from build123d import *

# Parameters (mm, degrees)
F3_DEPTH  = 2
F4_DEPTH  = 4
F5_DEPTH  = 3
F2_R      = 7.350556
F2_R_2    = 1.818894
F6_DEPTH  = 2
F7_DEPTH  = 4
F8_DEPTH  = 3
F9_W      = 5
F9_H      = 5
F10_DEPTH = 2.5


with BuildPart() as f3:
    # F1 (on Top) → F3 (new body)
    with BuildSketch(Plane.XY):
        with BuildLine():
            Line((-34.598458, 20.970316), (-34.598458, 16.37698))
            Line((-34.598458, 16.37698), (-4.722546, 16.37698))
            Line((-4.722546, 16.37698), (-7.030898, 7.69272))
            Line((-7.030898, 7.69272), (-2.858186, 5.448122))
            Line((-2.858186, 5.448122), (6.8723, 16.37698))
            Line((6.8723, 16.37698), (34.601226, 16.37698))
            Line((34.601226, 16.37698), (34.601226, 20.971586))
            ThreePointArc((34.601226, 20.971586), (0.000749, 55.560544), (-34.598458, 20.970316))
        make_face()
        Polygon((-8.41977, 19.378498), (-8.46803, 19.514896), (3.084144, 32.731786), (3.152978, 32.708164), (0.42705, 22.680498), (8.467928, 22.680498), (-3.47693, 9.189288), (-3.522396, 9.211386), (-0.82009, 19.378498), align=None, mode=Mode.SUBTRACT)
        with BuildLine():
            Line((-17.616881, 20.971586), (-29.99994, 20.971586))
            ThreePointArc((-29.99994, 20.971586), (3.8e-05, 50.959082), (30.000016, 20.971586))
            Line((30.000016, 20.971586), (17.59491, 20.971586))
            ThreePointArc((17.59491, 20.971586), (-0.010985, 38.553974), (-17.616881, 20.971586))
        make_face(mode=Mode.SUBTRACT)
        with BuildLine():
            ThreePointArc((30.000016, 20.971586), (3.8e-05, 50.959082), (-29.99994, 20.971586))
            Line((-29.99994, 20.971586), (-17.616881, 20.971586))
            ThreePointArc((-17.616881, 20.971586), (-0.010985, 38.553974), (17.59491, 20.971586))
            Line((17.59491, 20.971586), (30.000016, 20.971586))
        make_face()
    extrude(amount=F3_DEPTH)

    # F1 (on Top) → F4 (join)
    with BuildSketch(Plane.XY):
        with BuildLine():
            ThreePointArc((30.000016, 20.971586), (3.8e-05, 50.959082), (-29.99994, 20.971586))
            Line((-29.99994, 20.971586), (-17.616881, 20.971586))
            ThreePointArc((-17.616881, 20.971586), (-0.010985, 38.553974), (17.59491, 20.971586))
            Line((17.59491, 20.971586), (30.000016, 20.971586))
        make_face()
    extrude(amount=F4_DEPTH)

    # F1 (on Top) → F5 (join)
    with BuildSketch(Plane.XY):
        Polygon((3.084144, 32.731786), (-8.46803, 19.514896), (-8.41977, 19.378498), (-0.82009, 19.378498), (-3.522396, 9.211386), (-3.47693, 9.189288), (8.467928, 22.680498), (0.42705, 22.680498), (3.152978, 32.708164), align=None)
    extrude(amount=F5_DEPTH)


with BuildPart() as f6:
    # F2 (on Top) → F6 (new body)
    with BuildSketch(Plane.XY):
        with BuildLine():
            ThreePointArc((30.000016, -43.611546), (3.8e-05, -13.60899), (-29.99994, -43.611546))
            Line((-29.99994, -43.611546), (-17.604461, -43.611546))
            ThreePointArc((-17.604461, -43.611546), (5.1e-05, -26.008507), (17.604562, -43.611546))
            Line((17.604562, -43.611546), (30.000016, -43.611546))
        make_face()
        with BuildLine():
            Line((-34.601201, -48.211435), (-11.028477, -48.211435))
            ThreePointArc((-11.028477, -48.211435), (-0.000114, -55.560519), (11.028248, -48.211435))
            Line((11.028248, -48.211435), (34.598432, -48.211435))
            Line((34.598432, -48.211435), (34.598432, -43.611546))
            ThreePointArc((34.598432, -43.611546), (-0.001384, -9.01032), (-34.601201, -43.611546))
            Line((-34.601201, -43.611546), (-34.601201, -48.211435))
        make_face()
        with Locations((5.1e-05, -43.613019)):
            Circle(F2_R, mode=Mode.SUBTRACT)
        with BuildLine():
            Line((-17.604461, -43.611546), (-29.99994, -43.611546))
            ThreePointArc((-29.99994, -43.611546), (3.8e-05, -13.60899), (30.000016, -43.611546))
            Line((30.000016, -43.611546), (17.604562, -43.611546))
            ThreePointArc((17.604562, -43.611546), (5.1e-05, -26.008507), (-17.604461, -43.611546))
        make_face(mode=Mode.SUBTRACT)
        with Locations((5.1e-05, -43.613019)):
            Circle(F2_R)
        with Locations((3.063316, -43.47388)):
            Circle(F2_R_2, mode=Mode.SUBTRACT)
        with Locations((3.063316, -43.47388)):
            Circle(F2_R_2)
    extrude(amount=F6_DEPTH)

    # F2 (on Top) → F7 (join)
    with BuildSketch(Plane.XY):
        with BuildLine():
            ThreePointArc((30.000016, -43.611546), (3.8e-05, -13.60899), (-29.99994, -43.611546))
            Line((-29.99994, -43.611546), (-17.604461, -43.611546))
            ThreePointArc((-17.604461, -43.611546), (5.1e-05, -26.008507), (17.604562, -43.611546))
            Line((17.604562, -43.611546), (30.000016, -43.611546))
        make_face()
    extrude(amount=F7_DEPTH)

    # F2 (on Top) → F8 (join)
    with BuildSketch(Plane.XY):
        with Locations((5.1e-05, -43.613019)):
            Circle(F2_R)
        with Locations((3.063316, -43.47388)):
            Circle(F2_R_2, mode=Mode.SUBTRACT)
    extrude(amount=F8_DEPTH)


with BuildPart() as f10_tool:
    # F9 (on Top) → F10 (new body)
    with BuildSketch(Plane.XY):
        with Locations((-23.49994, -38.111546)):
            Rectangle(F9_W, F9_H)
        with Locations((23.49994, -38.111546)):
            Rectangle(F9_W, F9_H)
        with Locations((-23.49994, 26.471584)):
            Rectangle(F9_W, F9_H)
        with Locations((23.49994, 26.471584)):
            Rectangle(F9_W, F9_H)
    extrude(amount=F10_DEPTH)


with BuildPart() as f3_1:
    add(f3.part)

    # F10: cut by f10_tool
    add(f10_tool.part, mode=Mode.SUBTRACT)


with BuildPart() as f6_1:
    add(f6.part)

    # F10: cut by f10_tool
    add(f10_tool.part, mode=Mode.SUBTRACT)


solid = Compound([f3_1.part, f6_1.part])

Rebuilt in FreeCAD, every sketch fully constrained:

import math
import FreeCAD as App
import Part
import Sketcher

V = App.Vector


def add_polygon(sketch, points):
    """Adds a closed chain of lines whose ends are joined by coincident constraints."""
    first, n = sketch.GeometryCount, len(points)
    for a, b in zip(points, points[1:] + points[:1]):
        sketch.addGeometry(Part.LineSegment(App.Vector(*a, 0), App.Vector(*b, 0)), False)
    for i in range(n):
        sketch.addConstraint(Sketcher.Constraint("Coincident", first + i, 2, first + (i + 1) % n, 1))

doc = App.newDocument("Part")
body = doc.addObject("PartDesign::Body", "Body")

sketch1 = body.newObject("Sketcher::SketchObject", "Sketch")
sketch1.AttachmentSupport = (doc.getObject("XY_Plane"), [""])
sketch1.MapMode = "FlatFace"
sketch1.addGeometry(Part.LineSegment(V(-34.598458, 20.970316, 0), V(-34.598458, 16.37698, 0)), False)
sketch1.addGeometry(Part.LineSegment(V(-34.598458, 16.37698, 0), V(-4.722546, 16.37698, 0)), False)
sketch1.addGeometry(Part.LineSegment(V(-4.722546, 16.37698, 0), V(-7.030898, 7.69272, 0)), False)
sketch1.addGeometry(Part.LineSegment(V(-7.030898, 7.69272, 0), V(-2.858186, 5.448122, 0)), False)
sketch1.addGeometry(Part.LineSegment(V(-2.858186, 5.448122, 0), V(6.8723, 16.37698, 0)), False)
sketch1.addGeometry(Part.LineSegment(V(6.8723, 16.37698, 0), V(34.601226, 16.37698, 0)), False)
sketch1.addGeometry(Part.LineSegment(V(34.601226, 16.37698, 0), V(34.601226, 20.971586, 0)), False)
sketch1.addGeometry(Part.ArcOfCircle(Part.Circle(V(0.001384, 20.9607, 0), V(0, 0, 1), 34.599844), math.radians(0.018026), math.radians(179.984077)), False)
add_polygon(sketch1, [(-0.82009, 19.378498), (-8.41977, 19.378498), (-8.46803, 19.514896), (3.084144, 32.731786), (3.152978, 32.708164), (0.42705, 22.680498), (8.467928, 22.680498), (-3.47693, 9.189288), (-3.522396, 9.211386)])
sketch1.addConstraint([
    Sketcher.Constraint("Coincident", 0, 2, 1, 1),
    Sketcher.Constraint("Coincident", 1, 2, 2, 1),
    Sketcher.Constraint("Coincident", 2, 2, 3, 1),
    Sketcher.Constraint("Coincident", 3, 2, 4, 1),
    Sketcher.Constraint("Coincident", 4, 2, 5, 1),
    Sketcher.Constraint("Coincident", 5, 2, 6, 1),
    Sketcher.Constraint("Coincident", 6, 2, 7, 1),
    Sketcher.Constraint("Coincident", 7, 2, 0, 1),
    Sketcher.Constraint("Vertical", 0),
    Sketcher.Constraint("Horizontal", 1),
    Sketcher.Constraint("Horizontal", 5),
    Sketcher.Constraint("Vertical", 6),
    Sketcher.Constraint("Horizontal", 8),
    Sketcher.Constraint("Horizontal", 13),
    Sketcher.Constraint("Horizontal", 1, 2, 4, 2),
    Sketcher.Constraint("Radius", 7, 34.599844),
    Sketcher.Constraint("DistanceY", 8, 2, 12, 2, 3.302),
    Sketcher.Constraint("DistanceX", 1, 1, 1, 2, 29.875912),
    Sketcher.Constraint("DistanceX", 8, 2, 8, 1, 7.59968),
    Sketcher.Constraint("DistanceX", 13, 1, 13, 2, 8.040878),
    Sketcher.Constraint("DistanceY", -1, 1, 7, 3, 20.9607),
    Sketcher.Constraint("DistanceX", -1, 1, 4, 2, 6.8723),
    Sketcher.Constraint("DistanceY", -1, 1, 8, 2, 19.378498),
    Sketcher.Constraint("DistanceY", 9, 2, 12, 2, 3.165602),
    Sketcher.Constraint("DistanceX", 9, 2, 14, 2, 4.9911),
    Sketcher.Constraint("DistanceX", 2, 2, 15, 2, 3.508502),
    Sketcher.Constraint("Distance", 4, 14.632918),
    Sketcher.Constraint("Distance", 15, 0.050552),
    Sketcher.Constraint("DistanceX", 5, 1, 5, 2, 27.728926),
    Sketcher.Constraint("DistanceY", 0, 2, 0, 1, 4.593336),
    Sketcher.Constraint("DistanceY", 6, 1, 6, 2, 4.594606),
    Sketcher.Constraint("DistanceY", -1, 1, 0, 2, 16.37698),
    Sketcher.Constraint("DistanceY", -1, 1, 2, 2, 7.69272),
    Sketcher.Constraint("DistanceY", -1, 1, 3, 2, 5.448122),
    Sketcher.Constraint("DistanceX", 8, 2, -1, 1, 8.41977),
    Sketcher.Constraint("DistanceX", 9, 2, -1, 1, 8.46803),
    Sketcher.Constraint("DistanceX", -1, 1, 11, 2, 3.152978),
    Sketcher.Constraint("DistanceX", -1, 1, 12, 2, 0.42705),
    Sketcher.Constraint("DistanceX", 2, 2, 1, 2, 2.308352),
    Sketcher.Constraint("DistanceX", 7, 3, 10, 2, 3.08276),
    Sketcher.Constraint("DistanceY", 9, 2, 10, 2, 13.21689),
    Sketcher.Constraint("DistanceY", 14, 2, 8, 2, 10.18921),
    Sketcher.Constraint("Distance", 11, 0.072774),
])
pad1 = body.newObject("PartDesign::Pad", "Pad")
pad1.Profile = sketch1
pad1.Length = 2

sketch2 = body.newObject("Sketcher::SketchObject", "Sketch001")
sketch2.AttachmentSupport = (doc.getObject("XY_Plane"), [""])
sketch2.MapMode = "FlatFace"
sketch2.addGeometry([
    Part.ArcOfCircle(Part.Circle(V(0.000038, 20.959101, 0), V(0, 0, 1), 29.999981), math.radians(0.023844), math.radians(179.976156)),
    Part.LineSegment(V(-29.99994, 20.971586, 0), V(-17.616881, 20.971586, 0)),
    Part.ArcOfCircle(Part.Circle(V(-0.010986, 20.948063, 0), V(0, 0, 1), 17.605911), math.radians(0.076553), math.radians(179.923447)),
    Part.LineSegment(V(17.59491, 20.971586, 0), V(30.000016, 20.971586, 0)),
], False)
sketch2.addConstraint([
    Sketcher.Constraint("Coincident", 0, 2, 1, 1),
    Sketcher.Constraint("Coincident", 1, 2, 2, 2),
    Sketcher.Constraint("Coincident", 2, 1, 3, 1),
    Sketcher.Constraint("Coincident", 3, 2, 0, 1),
    Sketcher.Constraint("Horizontal", 1),
    Sketcher.Constraint("Horizontal", 3),
    Sketcher.Constraint("Horizontal", 1, 2, 2, 1),
    Sketcher.Constraint("Radius", 0, 29.999981),
    Sketcher.Constraint("Radius", 2, 17.605911),
    Sketcher.Constraint("DistanceX", 2, 3, 3, 2, 30.011001),
    Sketcher.Constraint("DistanceY", -1, 1, 0, 3, 20.959101),
    Sketcher.Constraint("DistanceX", 0, 2, -1, 1, 29.99994),
    Sketcher.Constraint("DistanceY", 2, 3, 0, 3, 0.011039),
    Sketcher.Constraint("DistanceY", -1, 1, 0, 2, 20.971586),
])
pad2 = body.newObject("PartDesign::Pad", "Pad001")
pad2.Profile = sketch2
pad2.Length = 4

sketch3 = body.newObject("Sketcher::SketchObject", "Sketch002")
sketch3.AttachmentSupport = (doc.getObject("XY_Plane"), [""])
sketch3.MapMode = "FlatFace"
add_polygon(sketch3, [(3.084144, 32.731786), (-8.46803, 19.514896), (-8.41977, 19.378498), (-0.82009, 19.378498), (-3.522396, 9.211386), (-3.47693, 9.189288), (8.467928, 22.680498), (0.42705, 22.680498), (3.152978, 32.708164)])
sketch3.addConstraint([
    Sketcher.Constraint("Horizontal", 2),
    Sketcher.Constraint("Horizontal", 6),
    Sketcher.Constraint("DistanceY", 2, 2, 5, 2, 3.302),
    Sketcher.Constraint("DistanceX", 2, 1, 2, 2, 7.59968),
    Sketcher.Constraint("DistanceX", 6, 2, 6, 1, 8.040878),
    Sketcher.Constraint("DistanceY", -1, 1, 1, 2, 19.378498),
    Sketcher.Constraint("DistanceX", 0, 2, 4, 2, 4.9911),
    Sketcher.Constraint("DistanceX", 1, 2, 5, 2, 16.887698),
    Sketcher.Constraint("DistanceY", 0, 2, 5, 2, 3.165602),
    Sketcher.Constraint("Distance", 4, 0.050552),
    Sketcher.Constraint("DistanceX", 0, 2, -1, 1, 8.46803),
    Sketcher.Constraint("DistanceX", 1, 2, -1, 1, 8.41977),
    Sketcher.Constraint("DistanceX", -1, 1, 7, 2, 3.152978),
    Sketcher.Constraint("DistanceY", 3, 2, 0, 2, 10.30351),
    Sketcher.Constraint("DistanceY", 4, 2, 2, 2, 10.18921),
    Sketcher.Constraint("DistanceY", 0, 2, 8, 2, 13.21689),
    Sketcher.Constraint("Distance", 0, 17.553886),
    Sketcher.Constraint("Distance", 7, 10.391572),
])
pad3 = body.newObject("PartDesign::Pad", "Pad002")
pad3.Profile = sketch3
pad3.Length = 3
body2 = doc.addObject("PartDesign::Body", "Body001")

sketch4 = body2.newObject("Sketcher::SketchObject", "Sketch003")
sketch4.AttachmentSupport = (doc.getObject("XY_Plane001"), [""])
sketch4.MapMode = "FlatFace"
sketch4.addGeometry([
    Part.LineSegment(V(-34.601201, -48.211435, 0), V(-11.028477, -48.211435, 0)),
    Part.ArcOfCircle(Part.Circle(V(-0.000115, -43.611151, 0), V(0, 0, 1), 11.949368), math.radians(-157.357417), math.radians(-22.642583)),
    Part.LineSegment(V(11.028248, -48.211435, 0), V(34.598432, -48.211435, 0)),
    Part.LineSegment(V(34.598432, -48.211435, 0), V(34.598432, -43.611546, 0)),
    Part.ArcOfCircle(Part.Circle(V(-0.001385, -43.610137, 0), V(0, 0, 1), 34.599817), math.radians(-0.002334), math.radians(180.002334)),
    Part.LineSegment(V(-34.601201, -43.611546, 0), V(-34.601201, -48.211435, 0)),
    Part.ArcOfCircle(Part.Circle(V(0.000051, -43.613019, 0), V(0, 0, 1), 17.604512), math.radians(0.004793), math.radians(179.995207)),
    Part.LineSegment(V(-17.604461, -43.611546, 0), V(-29.99994, -43.611546, 0)),
    Part.ArcOfCircle(Part.Circle(V(0.000038, -43.608968, 0), V(0, 0, 1), 29.999978), math.radians(-0.004923), math.radians(180.004923)),
    Part.LineSegment(V(30.000016, -43.611546, 0), V(17.604562, -43.611546, 0)),
], False)
sketch4.addConstraint([
    Sketcher.Constraint("Coincident", 0, 2, 1, 1),
    Sketcher.Constraint("Coincident", 1, 2, 2, 1),
    Sketcher.Constraint("Coincident", 2, 2, 3, 1),
    Sketcher.Constraint("Coincident", 3, 2, 4, 1),
    Sketcher.Constraint("Coincident", 4, 2, 5, 1),
    Sketcher.Constraint("Coincident", 5, 2, 0, 1),
    Sketcher.Constraint("Coincident", 6, 2, 7, 1),
    Sketcher.Constraint("Coincident", 7, 2, 8, 2),
    Sketcher.Constraint("Coincident", 8, 1, 9, 1),
    Sketcher.Constraint("Coincident", 9, 2, 6, 1),
    Sketcher.Constraint("Horizontal", 0),
    Sketcher.Constraint("Horizontal", 2),
    Sketcher.Constraint("Vertical", 3),
    Sketcher.Constraint("Vertical", 5),
    Sketcher.Constraint("Horizontal", 7),
    Sketcher.Constraint("Horizontal", 9),
    Sketcher.Constraint("Horizontal", 0, 2, 1, 2),
    Sketcher.Constraint("Horizontal", 3, 2, 4, 2),
    Sketcher.Constraint("Horizontal", 4, 2, 6, 2),
    Sketcher.Constraint("Horizontal", 7, 2, 8, 1),
    Sketcher.Constraint("Radius", 6, 17.604512),
    Sketcher.Constraint("Radius", 8, 29.999978),
    Sketcher.Constraint("Radius", 1, 11.949368),
    Sketcher.Constraint("Radius", 4, 34.599817),
    Sketcher.Constraint("DistanceX", 7, 2, 7, 1, 12.395479),
    Sketcher.Constraint("DistanceY", 3, 1, 3, 2, 4.599889),
    Sketcher.Constraint("DistanceX", 4, 2, -1, 1, 34.601201),
    Sketcher.Constraint("DistanceY", 0, 2, 4, 3, 4.601298),
    Sketcher.Constraint("DistanceX", 0, 1, 0, 2, 23.572724),
    Sketcher.Constraint("DistanceX", 2, 1, 2, 2, 23.570184),
    Sketcher.Constraint("DistanceY", 1, 3, -1, 1, 43.611151),
    Sketcher.Constraint("DistanceY", 6, 3, -1, 1, 43.613019),
    Sketcher.Constraint("DistanceY", 8, 3, -1, 1, 43.608968),
    Sketcher.Constraint("DistanceX", 6, 2, -1, 1, 17.604461),
])
pad4 = body2.newObject("PartDesign::Pad", "Pad003")
pad4.Profile = sketch4
pad4.Length = 2

sketch5 = body2.newObject("Sketcher::SketchObject", "Sketch004")
sketch5.AttachmentSupport = (doc.getObject("XY_Plane001"), [""])
sketch5.MapMode = "FlatFace"
sketch5.addGeometry([
    Part.ArcOfCircle(Part.Circle(V(0.000038, -43.608968, 0), V(0, 0, 1), 29.999978), math.radians(-0.004923), math.radians(180.004923)),
    Part.LineSegment(V(-29.99994, -43.611546, 0), V(-17.604461, -43.611546, 0)),
    Part.ArcOfCircle(Part.Circle(V(0.000051, -43.613019, 0), V(0, 0, 1), 17.604512), math.radians(0.004793), math.radians(179.995207)),
    Part.LineSegment(V(17.604562, -43.611546, 0), V(30.000016, -43.611546, 0)),
], False)
sketch5.addConstraint([
    Sketcher.Constraint("Coincident", 0, 2, 1, 1),
    Sketcher.Constraint("Coincident", 1, 2, 2, 2),
    Sketcher.Constraint("Coincident", 2, 1, 3, 1),
    Sketcher.Constraint("Coincident", 3, 2, 0, 1),
    Sketcher.Constraint("Horizontal", 1),
    Sketcher.Constraint("Horizontal", 3),
    Sketcher.Constraint("Horizontal", 1, 2, 2, 1),
    Sketcher.Constraint("Radius", 0, 29.999978),
    Sketcher.Constraint("Radius", 2, 17.604512),
    Sketcher.Constraint("DistanceX", 1, 1, 1, 2, 12.395479),
    Sketcher.Constraint("DistanceY", 0, 3, -1, 1, 43.608968),
    Sketcher.Constraint("DistanceY", 2, 3, -1, 1, 43.613019),
    Sketcher.Constraint("DistanceX", 0, 2, -1, 1, 29.99994),
    Sketcher.Constraint("DistanceY", 0, 2, -1, 1, 43.611546),
])
pad5 = body2.newObject("PartDesign::Pad", "Pad004")
pad5.Profile = sketch5
pad5.Length = 4

sketch6 = body2.newObject("Sketcher::SketchObject", "Sketch005")
sketch6.AttachmentSupport = (doc.getObject("XY_Plane001"), [""])
sketch6.MapMode = "FlatFace"
sketch6.addGeometry([
    Part.Circle(V(0.000051, -43.613019, 0), V(0, 0, 1), 7.350556),
    Part.Circle(V(3.063316, -43.47388, 0), V(0, 0, 1), 1.818894),
], False)
sketch6.addConstraint([
    Sketcher.Constraint("Diameter", 1, 3.637788),
    Sketcher.Constraint("Diameter", 0, 14.701112),
    Sketcher.Constraint("DistanceY", 0, 3, -1, 1, 43.613019),
    Sketcher.Constraint("DistanceY", 1, 3, -1, 1, 43.47388),
    Sketcher.Constraint("DistanceX", -1, 1, 1, 3, 3.063316),
    Sketcher.Constraint("DistanceX", 0, 3, 1, 3, 3.063265),
])
pad6 = body2.newObject("PartDesign::Pad", "Pad005")
pad6.Profile = sketch6
pad6.Length = 3
body3 = doc.addObject("PartDesign::Body", "Body002")
body3.AllowCompound = True

sketch7 = body3.newObject("Sketcher::SketchObject", "Sketch006")
sketch7.AttachmentSupport = (doc.getObject("XY_Plane002"), [""])
sketch7.MapMode = "FlatFace"
add_polygon(sketch7, [(-25.99994, -35.611546), (-25.99994, -40.611546), (-20.99994, -40.611546), (-20.99994, -35.611546)])
add_polygon(sketch7, [(20.99994, -35.611546), (20.99994, -40.611546), (25.99994, -40.611546), (25.99994, -35.611546)])
add_polygon(sketch7, [(-25.99994, 28.971584), (-25.99994, 23.971584), (-20.99994, 23.971584), (-20.99994, 28.971584)])
add_polygon(sketch7, [(20.99994, 28.971584), (20.99994, 23.971584), (25.99994, 23.971584), (25.99994, 28.971584)])
sketch7.addConstraint([
    Sketcher.Constraint("Vertical", 0),
    Sketcher.Constraint("Horizontal", 1),
    Sketcher.Constraint("Vertical", 2),
    Sketcher.Constraint("Horizontal", 3),
    Sketcher.Constraint("Vertical", 4),
    Sketcher.Constraint("Horizontal", 5),
    Sketcher.Constraint("Vertical", 6),
    Sketcher.Constraint("Horizontal", 7),
    Sketcher.Constraint("Vertical", 8),
    Sketcher.Constraint("Horizontal", 9),
    Sketcher.Constraint("Vertical", 10),
    Sketcher.Constraint("Horizontal", 11),
    Sketcher.Constraint("Vertical", 12),
    Sketcher.Constraint("Horizontal", 13),
    Sketcher.Constraint("Vertical", 14),
    Sketcher.Constraint("Horizontal", 15),
    Sketcher.Constraint("Symmetric", 1, 2, 4, 2, -2),
    Sketcher.Constraint("Symmetric", 3, 2, 6, 2, -2),
    Sketcher.Constraint("Symmetric", 9, 2, 12, 2, -2),
    Sketcher.Constraint("Symmetric", 11, 2, 14, 2, -2),
    Sketcher.Constraint("Vertical", 3, 2, 8, 2),
    Sketcher.Constraint("Vertical", 2, 2, 9, 2),
    Sketcher.Constraint("Equal", 15, 0),
    Sketcher.Constraint("Equal", 6, 8),
    Sketcher.Constraint("DistanceX", 1, 1, 1, 2, 5.0),
    Sketcher.Constraint("DistanceX", 0, 2, -1, 1, 25.99994),
    Sketcher.Constraint("DistanceY", 3, 2, 8, 2, 59.58313),
    Sketcher.Constraint("DistanceY", 0, 2, -1, 1, 40.611546),
])
pad7 = body3.newObject("PartDesign::Pad", "Pad006")
pad7.Profile = sketch7
pad7.Length = 2.5
doc.recompute()

body4 = doc.addObject("PartDesign::Body", "Body003")
body4.BaseFeature = body3
boolean = body.newObject("PartDesign::Boolean", "Boolean")
boolean.Type = "Cut"
boolean.addObjects([body4])
doc.recompute()

boolean2 = body2.newObject("PartDesign::Boolean", "Boolean001")
boolean2.Type = "Cut"
boolean2.addObjects([body3])

doc.recompute()
